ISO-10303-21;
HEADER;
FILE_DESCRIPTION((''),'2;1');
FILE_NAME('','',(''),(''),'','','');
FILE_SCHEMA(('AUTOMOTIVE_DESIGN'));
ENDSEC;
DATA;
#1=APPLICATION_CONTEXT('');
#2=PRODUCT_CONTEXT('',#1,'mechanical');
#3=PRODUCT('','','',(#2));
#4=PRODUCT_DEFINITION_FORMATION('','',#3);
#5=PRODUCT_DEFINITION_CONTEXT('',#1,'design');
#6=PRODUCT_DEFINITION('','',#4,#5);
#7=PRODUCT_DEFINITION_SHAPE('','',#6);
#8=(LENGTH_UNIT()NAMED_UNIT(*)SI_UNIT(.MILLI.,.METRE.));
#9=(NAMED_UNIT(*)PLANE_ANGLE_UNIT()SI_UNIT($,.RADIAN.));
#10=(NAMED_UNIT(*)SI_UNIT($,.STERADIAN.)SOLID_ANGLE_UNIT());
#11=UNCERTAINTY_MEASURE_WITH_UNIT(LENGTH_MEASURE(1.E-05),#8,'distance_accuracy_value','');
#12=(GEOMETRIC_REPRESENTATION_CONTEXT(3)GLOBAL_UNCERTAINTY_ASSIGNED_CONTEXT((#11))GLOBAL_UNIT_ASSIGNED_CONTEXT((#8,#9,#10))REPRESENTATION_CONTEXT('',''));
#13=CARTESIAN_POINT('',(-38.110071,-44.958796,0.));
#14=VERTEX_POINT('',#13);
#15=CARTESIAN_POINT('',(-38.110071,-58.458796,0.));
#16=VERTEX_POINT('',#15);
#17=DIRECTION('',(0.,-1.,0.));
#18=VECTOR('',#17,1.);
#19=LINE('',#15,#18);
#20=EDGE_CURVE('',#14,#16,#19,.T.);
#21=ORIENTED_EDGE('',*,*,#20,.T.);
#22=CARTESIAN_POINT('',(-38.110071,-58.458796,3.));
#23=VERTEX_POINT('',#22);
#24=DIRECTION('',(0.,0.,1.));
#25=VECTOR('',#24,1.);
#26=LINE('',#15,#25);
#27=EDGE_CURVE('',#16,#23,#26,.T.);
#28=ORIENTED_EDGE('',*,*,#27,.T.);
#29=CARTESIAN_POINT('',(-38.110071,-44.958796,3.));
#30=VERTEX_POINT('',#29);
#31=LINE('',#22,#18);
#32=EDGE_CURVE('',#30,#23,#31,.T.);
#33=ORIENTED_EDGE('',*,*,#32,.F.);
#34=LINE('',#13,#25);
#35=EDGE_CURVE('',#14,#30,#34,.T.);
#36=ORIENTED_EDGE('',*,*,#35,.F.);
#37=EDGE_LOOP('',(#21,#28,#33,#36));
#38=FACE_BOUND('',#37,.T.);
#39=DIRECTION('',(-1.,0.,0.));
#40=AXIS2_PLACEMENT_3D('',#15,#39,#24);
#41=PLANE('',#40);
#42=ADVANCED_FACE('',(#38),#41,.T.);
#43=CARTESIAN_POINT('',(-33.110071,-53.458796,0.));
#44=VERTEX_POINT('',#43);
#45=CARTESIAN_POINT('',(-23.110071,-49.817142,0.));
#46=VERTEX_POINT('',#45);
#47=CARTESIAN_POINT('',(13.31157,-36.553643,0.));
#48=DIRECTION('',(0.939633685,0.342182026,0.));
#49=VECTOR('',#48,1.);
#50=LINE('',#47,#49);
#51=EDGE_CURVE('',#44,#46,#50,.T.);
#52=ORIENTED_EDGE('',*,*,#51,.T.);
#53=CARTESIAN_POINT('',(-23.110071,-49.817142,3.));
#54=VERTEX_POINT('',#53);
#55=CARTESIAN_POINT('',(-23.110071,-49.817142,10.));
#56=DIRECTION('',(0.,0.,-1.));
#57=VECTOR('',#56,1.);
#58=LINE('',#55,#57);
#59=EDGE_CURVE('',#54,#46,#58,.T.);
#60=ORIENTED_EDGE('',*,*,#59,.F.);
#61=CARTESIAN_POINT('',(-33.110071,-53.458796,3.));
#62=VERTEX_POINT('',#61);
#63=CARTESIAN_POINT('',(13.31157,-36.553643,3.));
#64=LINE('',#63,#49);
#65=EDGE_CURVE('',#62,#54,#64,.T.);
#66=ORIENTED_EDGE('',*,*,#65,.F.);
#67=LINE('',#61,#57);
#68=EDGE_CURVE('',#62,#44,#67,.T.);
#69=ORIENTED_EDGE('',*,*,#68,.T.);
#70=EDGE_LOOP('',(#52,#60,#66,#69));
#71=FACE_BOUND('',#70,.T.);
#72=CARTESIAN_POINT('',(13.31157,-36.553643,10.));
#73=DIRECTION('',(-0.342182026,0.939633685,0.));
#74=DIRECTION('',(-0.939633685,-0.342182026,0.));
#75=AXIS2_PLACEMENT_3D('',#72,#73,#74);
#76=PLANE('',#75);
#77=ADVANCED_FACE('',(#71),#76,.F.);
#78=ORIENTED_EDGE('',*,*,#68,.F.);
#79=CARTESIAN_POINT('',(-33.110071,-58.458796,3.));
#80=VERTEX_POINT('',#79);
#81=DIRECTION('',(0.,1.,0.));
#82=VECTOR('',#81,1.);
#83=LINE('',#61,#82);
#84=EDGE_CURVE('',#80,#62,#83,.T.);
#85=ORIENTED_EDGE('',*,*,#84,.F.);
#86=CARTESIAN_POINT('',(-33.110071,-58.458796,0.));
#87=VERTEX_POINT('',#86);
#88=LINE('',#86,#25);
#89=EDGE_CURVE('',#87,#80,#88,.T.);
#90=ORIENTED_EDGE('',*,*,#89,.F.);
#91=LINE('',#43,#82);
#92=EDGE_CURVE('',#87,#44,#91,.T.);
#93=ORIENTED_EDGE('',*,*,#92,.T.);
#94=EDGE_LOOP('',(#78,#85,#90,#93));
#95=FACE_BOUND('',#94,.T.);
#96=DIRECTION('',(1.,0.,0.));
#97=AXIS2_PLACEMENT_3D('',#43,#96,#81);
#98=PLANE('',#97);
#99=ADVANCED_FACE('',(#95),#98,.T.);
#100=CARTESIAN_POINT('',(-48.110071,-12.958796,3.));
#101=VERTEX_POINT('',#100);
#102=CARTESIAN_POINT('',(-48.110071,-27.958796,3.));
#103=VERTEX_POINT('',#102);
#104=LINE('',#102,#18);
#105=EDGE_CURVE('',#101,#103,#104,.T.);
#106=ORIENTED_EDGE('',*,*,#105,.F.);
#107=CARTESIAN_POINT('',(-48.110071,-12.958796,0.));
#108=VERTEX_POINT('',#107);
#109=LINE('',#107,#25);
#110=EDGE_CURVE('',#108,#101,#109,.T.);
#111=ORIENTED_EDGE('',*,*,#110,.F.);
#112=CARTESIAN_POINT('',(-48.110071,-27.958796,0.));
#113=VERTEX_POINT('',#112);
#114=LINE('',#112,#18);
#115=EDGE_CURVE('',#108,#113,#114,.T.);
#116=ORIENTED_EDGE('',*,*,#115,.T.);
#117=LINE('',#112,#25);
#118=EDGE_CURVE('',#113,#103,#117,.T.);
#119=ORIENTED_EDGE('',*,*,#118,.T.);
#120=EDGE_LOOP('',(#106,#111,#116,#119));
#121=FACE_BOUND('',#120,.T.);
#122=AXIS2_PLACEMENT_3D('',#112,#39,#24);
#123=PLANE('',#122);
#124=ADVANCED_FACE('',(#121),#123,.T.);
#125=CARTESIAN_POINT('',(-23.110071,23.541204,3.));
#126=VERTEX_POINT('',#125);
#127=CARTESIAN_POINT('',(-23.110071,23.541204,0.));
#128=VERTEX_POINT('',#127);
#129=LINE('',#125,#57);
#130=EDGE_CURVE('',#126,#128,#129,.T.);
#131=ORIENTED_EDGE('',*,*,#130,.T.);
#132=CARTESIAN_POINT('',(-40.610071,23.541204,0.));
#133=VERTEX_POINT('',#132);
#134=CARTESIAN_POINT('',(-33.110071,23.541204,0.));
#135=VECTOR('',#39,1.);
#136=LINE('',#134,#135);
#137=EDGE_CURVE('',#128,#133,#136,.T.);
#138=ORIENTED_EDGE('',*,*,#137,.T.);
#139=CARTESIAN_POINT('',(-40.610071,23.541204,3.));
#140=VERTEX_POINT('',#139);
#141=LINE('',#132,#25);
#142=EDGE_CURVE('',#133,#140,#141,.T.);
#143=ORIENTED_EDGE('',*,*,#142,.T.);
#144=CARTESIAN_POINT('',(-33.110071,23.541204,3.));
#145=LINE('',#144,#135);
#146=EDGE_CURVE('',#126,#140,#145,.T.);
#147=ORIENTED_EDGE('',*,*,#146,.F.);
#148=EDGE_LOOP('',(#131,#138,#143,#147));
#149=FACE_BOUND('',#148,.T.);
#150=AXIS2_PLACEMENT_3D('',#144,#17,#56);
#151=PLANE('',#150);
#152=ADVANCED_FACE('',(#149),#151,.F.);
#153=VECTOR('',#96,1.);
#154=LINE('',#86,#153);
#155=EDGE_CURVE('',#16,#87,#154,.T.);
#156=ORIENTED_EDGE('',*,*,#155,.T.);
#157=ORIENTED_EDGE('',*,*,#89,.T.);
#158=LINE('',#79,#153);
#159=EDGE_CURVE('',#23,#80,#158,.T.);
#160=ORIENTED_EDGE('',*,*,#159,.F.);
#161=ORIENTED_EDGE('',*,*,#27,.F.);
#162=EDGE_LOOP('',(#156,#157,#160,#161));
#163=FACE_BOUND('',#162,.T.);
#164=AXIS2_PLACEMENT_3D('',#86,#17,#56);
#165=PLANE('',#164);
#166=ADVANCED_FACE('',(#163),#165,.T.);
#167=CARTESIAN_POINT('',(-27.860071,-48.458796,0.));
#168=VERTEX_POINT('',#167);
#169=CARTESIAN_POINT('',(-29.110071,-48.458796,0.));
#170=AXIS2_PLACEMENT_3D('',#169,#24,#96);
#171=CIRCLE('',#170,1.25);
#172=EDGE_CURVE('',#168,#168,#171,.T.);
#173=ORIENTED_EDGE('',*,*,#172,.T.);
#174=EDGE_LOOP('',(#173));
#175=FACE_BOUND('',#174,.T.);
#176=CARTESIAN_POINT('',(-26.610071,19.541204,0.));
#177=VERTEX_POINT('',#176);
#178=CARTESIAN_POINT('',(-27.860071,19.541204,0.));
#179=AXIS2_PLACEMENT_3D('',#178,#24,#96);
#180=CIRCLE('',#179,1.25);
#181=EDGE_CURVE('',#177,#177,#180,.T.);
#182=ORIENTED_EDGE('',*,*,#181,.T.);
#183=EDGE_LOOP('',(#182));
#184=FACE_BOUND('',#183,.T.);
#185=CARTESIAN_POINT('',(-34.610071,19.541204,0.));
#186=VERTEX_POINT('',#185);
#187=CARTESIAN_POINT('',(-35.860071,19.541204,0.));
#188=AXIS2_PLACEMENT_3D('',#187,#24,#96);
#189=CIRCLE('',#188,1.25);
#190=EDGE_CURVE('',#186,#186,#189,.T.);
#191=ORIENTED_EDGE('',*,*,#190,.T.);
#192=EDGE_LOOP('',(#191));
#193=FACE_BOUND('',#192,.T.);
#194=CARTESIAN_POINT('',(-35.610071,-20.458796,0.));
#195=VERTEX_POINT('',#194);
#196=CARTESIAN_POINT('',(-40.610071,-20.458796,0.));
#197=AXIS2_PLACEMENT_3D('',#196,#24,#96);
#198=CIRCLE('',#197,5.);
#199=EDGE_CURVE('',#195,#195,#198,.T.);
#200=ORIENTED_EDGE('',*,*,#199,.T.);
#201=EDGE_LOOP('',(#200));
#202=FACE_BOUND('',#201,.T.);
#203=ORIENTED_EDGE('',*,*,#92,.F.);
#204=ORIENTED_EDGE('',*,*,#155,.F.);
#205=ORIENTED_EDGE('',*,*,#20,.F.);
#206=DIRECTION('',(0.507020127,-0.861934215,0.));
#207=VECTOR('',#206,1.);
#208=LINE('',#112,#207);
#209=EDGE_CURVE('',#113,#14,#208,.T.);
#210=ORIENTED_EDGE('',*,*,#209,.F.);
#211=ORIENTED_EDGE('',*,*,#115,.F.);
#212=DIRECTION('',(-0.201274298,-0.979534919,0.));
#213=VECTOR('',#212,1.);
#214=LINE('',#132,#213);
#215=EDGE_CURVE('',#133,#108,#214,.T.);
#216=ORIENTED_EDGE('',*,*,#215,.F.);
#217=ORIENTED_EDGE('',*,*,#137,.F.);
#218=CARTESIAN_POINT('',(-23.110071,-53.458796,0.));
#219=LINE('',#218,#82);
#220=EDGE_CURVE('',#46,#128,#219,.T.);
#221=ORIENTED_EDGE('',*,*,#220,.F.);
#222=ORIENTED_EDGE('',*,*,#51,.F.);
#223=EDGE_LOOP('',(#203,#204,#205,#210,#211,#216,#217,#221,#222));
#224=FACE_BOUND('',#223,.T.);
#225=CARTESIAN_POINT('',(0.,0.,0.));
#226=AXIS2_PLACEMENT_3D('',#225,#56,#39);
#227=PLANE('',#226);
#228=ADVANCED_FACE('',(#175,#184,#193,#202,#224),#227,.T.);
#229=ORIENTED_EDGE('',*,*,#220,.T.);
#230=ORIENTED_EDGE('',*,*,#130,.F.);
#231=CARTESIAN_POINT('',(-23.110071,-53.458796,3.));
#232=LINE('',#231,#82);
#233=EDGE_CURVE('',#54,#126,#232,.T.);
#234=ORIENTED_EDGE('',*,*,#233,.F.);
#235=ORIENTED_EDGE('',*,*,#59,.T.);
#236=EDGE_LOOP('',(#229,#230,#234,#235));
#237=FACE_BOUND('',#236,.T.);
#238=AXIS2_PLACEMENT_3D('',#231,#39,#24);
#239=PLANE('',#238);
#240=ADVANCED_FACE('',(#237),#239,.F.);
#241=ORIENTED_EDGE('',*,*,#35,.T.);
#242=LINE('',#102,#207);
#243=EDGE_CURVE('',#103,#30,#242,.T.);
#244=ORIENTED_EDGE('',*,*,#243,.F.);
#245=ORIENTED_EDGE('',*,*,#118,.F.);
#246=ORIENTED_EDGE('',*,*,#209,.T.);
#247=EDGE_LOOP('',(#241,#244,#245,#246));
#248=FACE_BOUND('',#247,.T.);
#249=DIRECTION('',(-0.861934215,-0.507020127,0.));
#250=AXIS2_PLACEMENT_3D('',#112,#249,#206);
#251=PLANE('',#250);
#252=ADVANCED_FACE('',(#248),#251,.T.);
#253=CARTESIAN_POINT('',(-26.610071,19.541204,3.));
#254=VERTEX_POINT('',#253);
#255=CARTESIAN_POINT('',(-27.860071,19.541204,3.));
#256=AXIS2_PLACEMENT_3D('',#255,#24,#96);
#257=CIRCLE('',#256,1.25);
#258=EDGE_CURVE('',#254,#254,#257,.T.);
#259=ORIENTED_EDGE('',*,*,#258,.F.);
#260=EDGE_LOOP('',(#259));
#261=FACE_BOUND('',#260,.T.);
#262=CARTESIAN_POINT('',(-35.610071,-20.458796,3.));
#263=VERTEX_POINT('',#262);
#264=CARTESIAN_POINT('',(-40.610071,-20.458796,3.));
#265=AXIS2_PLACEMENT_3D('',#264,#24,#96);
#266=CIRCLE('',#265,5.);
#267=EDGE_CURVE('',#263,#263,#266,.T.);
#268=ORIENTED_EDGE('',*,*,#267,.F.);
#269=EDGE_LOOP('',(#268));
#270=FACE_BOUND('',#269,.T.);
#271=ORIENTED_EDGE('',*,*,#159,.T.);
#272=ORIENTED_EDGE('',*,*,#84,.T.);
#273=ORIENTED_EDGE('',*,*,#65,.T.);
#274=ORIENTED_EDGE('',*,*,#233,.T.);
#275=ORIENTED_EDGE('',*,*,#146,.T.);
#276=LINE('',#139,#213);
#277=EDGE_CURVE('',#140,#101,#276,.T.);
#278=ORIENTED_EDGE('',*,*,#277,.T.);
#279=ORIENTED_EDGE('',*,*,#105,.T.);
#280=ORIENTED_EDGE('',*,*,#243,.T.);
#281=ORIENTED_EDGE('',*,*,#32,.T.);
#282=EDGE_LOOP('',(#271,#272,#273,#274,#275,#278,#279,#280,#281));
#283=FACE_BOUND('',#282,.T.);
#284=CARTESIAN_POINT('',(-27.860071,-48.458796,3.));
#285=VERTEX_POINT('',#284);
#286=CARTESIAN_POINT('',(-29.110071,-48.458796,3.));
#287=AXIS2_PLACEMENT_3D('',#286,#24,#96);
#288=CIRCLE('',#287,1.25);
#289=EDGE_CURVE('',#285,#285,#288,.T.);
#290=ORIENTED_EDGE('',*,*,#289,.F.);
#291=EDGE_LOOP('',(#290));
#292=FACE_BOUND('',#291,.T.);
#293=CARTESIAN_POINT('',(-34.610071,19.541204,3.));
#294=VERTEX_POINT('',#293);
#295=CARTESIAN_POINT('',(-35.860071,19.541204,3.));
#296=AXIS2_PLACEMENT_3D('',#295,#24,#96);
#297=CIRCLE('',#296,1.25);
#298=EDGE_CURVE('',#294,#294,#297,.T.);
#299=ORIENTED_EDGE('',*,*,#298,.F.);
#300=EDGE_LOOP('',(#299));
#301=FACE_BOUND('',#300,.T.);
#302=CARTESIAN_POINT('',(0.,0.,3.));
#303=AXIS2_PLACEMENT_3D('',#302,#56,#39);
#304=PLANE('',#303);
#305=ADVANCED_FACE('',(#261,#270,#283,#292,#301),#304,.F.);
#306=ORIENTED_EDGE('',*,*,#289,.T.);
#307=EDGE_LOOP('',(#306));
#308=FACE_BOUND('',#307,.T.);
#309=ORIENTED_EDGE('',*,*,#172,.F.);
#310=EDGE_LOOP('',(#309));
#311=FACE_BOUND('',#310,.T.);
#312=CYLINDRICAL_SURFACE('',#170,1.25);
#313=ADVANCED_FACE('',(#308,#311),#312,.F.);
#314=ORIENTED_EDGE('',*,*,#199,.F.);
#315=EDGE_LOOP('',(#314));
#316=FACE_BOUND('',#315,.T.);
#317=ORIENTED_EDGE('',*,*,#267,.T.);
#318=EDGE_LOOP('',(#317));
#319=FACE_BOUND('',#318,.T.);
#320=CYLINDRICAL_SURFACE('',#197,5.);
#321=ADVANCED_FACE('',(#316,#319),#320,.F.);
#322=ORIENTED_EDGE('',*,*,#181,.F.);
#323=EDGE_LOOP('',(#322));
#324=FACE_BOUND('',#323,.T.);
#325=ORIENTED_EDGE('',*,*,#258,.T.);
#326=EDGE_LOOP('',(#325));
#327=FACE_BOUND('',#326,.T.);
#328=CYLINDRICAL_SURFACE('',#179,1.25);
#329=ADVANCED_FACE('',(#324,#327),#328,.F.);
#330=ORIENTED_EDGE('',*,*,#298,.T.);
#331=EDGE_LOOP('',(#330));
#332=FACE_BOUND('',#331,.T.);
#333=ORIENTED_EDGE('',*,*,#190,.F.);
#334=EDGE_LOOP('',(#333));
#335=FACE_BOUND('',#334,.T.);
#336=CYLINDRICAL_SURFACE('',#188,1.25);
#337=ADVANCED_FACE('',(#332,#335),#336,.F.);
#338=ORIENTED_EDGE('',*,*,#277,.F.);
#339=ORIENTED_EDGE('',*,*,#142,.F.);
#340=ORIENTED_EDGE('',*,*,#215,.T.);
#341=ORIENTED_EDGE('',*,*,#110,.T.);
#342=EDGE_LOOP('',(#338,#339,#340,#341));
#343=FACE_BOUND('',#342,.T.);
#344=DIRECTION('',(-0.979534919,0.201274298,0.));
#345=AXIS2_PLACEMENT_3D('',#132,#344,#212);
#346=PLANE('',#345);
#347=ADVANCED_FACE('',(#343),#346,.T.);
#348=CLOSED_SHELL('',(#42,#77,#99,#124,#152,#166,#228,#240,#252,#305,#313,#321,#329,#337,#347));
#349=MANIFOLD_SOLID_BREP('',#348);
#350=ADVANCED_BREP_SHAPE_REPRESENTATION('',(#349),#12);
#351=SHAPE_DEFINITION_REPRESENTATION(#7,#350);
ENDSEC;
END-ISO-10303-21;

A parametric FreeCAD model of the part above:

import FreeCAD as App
import Part
import Sketcher
Q = App.Units.Quantity


def add_polygon(sketch, points):
    """Adds a closed chain of lines whose ends are joined by coincident constraints."""
    first, n = sketch.GeometryCount, len(points)
    for a, b in zip(points, points[1:] + points[:1]):
        sketch.addGeometry(Part.LineSegment(App.Vector(*a, 0), App.Vector(*b, 0)), False)
    for i in range(n):
        sketch.addConstraint(Sketcher.Constraint("Coincident", first + i, 2, first + (i + 1) % n, 1))

doc = App.newDocument("Part")
params = doc.addObject("Spreadsheet::Sheet", "Params")
for row, (alias, value) in enumerate([
    ("sketch1_width", "10 mm"),
    ("sketch1_height", "77 mm"),
    ("pad1_length", "3 mm"),
    ("sketch2_width", "15 mm"),
    ("pad2_length", "3 mm"),
    ("sketch3_width", "15 mm"),
    ("sketch3_width2", "7.5 mm"),
    ("sketch3_height", "36.5 mm"),
    ("sketch3_height2", "25.5 mm"),
    ("pad3_length", "3 mm"),
    ("sketch4_width", "5 mm"),
    ("sketch4_height", "13.5 mm"),
    ("pad4_length", "3 mm"),
    ("sketch5_diameter", "10 mm"),
    ("sketch5_diameter2", "2.5 mm"),
    ("pocket1_length", "3 mm"),
    ("sketch6_width", "10 mm"),
    ("pocket2_length", "10 mm"),
], start=1):
    params.set(f"A{row}", alias)
    params.set(f"B{row}", "=" + value)
    params.setAlias(f"B{row}", alias)

body = doc.addObject("PartDesign::Body", "Body")

sketch1 = doc.addObject("Sketcher::SketchObject", "Sketch")
body.addObject(sketch1)
sketch1.AttachmentSupport = (doc.XY_Plane, [""])
sketch1.MapMode = "FlatFace"
add_polygon(sketch1, [(-33, 24), (-33, -53), (-23, -53), (-23, 24)])
sketch1.addConstraint(Sketcher.Constraint("Vertical", 0))
sketch1.addConstraint(Sketcher.Constraint("Horizontal", 1))
sketch1.addConstraint(Sketcher.Constraint("Vertical", 2))
sketch1.addConstraint(Sketcher.Constraint("Horizontal", 3))
sketch1.addConstraint(Sketcher.Constraint("DistanceX", 1, 1, 1, 2, Q("10 mm")))
sketch1.addConstraint(Sketcher.Constraint("DistanceY", 0, 2, 0, 1, Q("77 mm")))
sketch1.addConstraint(Sketcher.Constraint("DistanceX", 0, 2, -1, 1, Q("33.110071 mm")))
sketch1.addConstraint(Sketcher.Constraint("DistanceY", 0, 2, -1, 1, Q("53.458796 mm")))
sketch1.setExpression("Constraints[8]", "Params.sketch1_width")
sketch1.setExpression("Constraints[9]", "Params.sketch1_height")
pad1 = doc.addObject("PartDesign::Pad", "Pad")
body.addObject(pad1)
pad1.Profile = sketch1
pad1.setExpression("Length", "Params.pad1_length")

sketch2 = doc.addObject("Sketcher::SketchObject", "Sketch001")
body.addObject(sketch2)
sketch2.AttachmentSupport = (doc.XY_Plane, [""])
sketch2.MapMode = "FlatFace"
sketch2.AttachmentOffset = App.Placement(App.Vector(0, 0, 3), App.Rotation())
add_polygon(sketch2, [(-48, -13), (-48, -28), (-33, -28), (-33, -13)])
sketch2.addConstraint(Sketcher.Constraint("Vertical", 0))
sketch2.addConstraint(Sketcher.Constraint("Horizontal", 1))
sketch2.addConstraint(Sketcher.Constraint("Vertical", 2))
sketch2.addConstraint(Sketcher.Constraint("Horizontal", 3))
sketch2.addConstraint(Sketcher.Constraint("Equal", 3, 0))
sketch2.addConstraint(Sketcher.Constraint("DistanceX", 1, 1, 1, 2, Q("15 mm")))
sketch2.addConstraint(Sketcher.Constraint("DistanceX", 0, 2, -1, 1, Q("48.110071 mm")))
sketch2.addConstraint(Sketcher.Constraint("DistanceY", 0, 2, -1, 1, Q("27.958796 mm")))
sketch2.setExpression("Constraints[9]", "Params.sketch2_width")
pad2 = doc.addObject("PartDesign::Pad", "Pad001")
body.addObject(pad2)
pad2.Profile = sketch2
pad2.setExpression("Length", "Params.pad2_length")
pad2.Reversed = True

sketch3 = doc.addObject("Sketcher::SketchObject", "Sketch002")
body.addObject(sketch3)
sketch3.AttachmentSupport = (doc.XY_Plane, [""])
sketch3.MapMode = "FlatFace"
sketch3.AttachmentOffset = App.Placement(App.Vector(0, 0, 3), App.Rotation())
add_polygon(sketch3, [(-33, 24), (-41, 24), (-48, -13), (-33, -13)])
add_polygon(sketch3, [(-48, -28), (-33, -53), (-33, -28)])
sketch3.addConstraint(Sketcher.Constraint("Horizontal", 0))
sketch3.addConstraint(Sketcher.Constraint("Horizontal", 2))
sketch3.addConstraint(Sketcher.Constraint("Vertical", 3))
sketch3.addConstraint(Sketcher.Constraint("Vertical", 5))
sketch3.addConstraint(Sketcher.Constraint("Horizontal", 6))
sketch3.addConstraint(Sketcher.Constraint("Vertical", 3, 2, 4, 2))
sketch3.addConstraint(Sketcher.Constraint("Vertical", 1, 2, 6, 2))
sketch3.addConstraint(Sketcher.Constraint("DistanceX", 2, 1, 2, 2, Q("15 mm")))
sketch3.addConstraint(Sketcher.Constraint("DistanceX", 0, 2, 0, 1, Q("7.5 mm")))
sketch3.addConstraint(Sketcher.Constraint("DistanceY", 3, 1, 3, 2, Q("36.5 mm")))
sketch3.addConstraint(Sketcher.Constraint("DistanceY", 5, 1, 5, 2, Q("25.5 mm")))
sketch3.addConstraint(Sketcher.Constraint("DistanceY", 4, 2, 3, 2, Q("77 mm")))
sketch3.addConstraint(Sketcher.Constraint("DistanceX", 0, 2, -1, 1, Q("40.610071 mm")))
sketch3.addConstraint(Sketcher.Constraint("DistanceY", -1, 1, 0, 2, Q("23.541204 mm")))
sketch3.setExpression("Constraints[14]", "Params.sketch3_width")
sketch3.setExpression("Constraints[15]", "Params.sketch3_width2")
sketch3.setExpression("Constraints[16]", "Params.sketch3_height")
sketch3.setExpression("Constraints[17]", "Params.sketch3_height2")
pad3 = doc.addObject("PartDesign::Pad", "Pad002")
body.addObject(pad3)
pad3.Profile = sketch3
pad3.setExpression("Length", "Params.pad3_length")
pad3.Reversed = True

sketch4 = doc.addObject("Sketcher::SketchObject", "Sketch003")
body.addObject(sketch4)
sketch4.AttachmentSupport = (doc.XY_Plane, [""])
sketch4.MapMode = "FlatFace"
sketch4.AttachmentOffset = App.Placement(App.Vector(0, 0, 3), App.Rotation())
add_polygon(sketch4, [(-33, -58), (-33, -53), (-38, -45), (-38, -58)])
sketch4.addConstraint(Sketcher.Constraint("Vertical", 0))
sketch4.addConstraint(Sketcher.Constraint("Vertical", 2))
sketch4.addConstraint(Sketcher.Constraint("Horizontal", 3))
sketch4.addConstraint(Sketcher.Constraint("Equal", 3, 0))
sketch4.addConstraint(Sketcher.Constraint("DistanceX", 3, 1, 3, 2, Q("5 mm")))
sketch4.addConstraint(Sketcher.Constraint("DistanceY", 2, 2, 2, 1, Q("13.5 mm")))
sketch4.addConstraint(Sketcher.Constraint("DistanceX", 0, 2, -1, 1, Q("33.110071 mm")))
sketch4.addConstraint(Sketcher.Constraint("DistanceY", 0, 2, -1, 1, Q("53.458796 mm")))
sketch4.setExpression("Constraints[8]", "Params.sketch4_width")
sketch4.setExpression("Constraints[9]", "Params.sketch4_height")
pad4 = doc.addObject("PartDesign::Pad", "Pad003")
body.addObject(pad4)
pad4.Profile = sketch4
pad4.setExpression("Length", "Params.pad4_length")
pad4.Reversed = True

sketch5 = doc.addObject("Sketcher::SketchObject", "Sketch004")
body.addObject(sketch5)
sketch5.AttachmentSupport = (doc.XY_Plane, [""])
sketch5.MapMode = "FlatFace"
sketch5.AttachmentOffset = App.Placement(App.Vector(0, 0, 3), App.Rotation())
sketch5.addGeometry(Part.Circle(App.Vector(-40.6, -20.5, 0), App.Vector(0, 0, 1), 5), False)
sketch5.addGeometry(Part.Circle(App.Vector(-29.1, -48.5, 0), App.Vector(0, 0, 1), 1.2), False)
sketch5.addGeometry(Part.Circle(App.Vector(-35.9, 19.5, 0), App.Vector(0, 0, 1), 1.2), False)
sketch5.addGeometry(Part.Circle(App.Vector(-27.9, 19.5, 0), App.Vector(0, 0, 1), 1.2), False)
sketch5.addConstraint(Sketcher.Constraint("Equal", 1, 2))
sketch5.addConstraint(Sketcher.Constraint("Equal", 2, 3))
sketch5.addConstraint(Sketcher.Constraint("Horizontal", 2, 3, 3, 3))
sketch5.addConstraint(Sketcher.Constraint("Diameter", 0, Q("10 mm")))
sketch5.addConstraint(Sketcher.Constraint("Diameter", 1, Q("2.5 mm")))
sketch5.addConstraint(Sketcher.Constraint("DistanceY", 1, 3, 0, 3, Q("28 mm")))
sketch5.addConstraint(Sketcher.Constraint("DistanceY", 0, 3, 2, 3, Q("40 mm")))
sketch5.addConstraint(Sketcher.Constraint("DistanceX", 2, 3, 3, 3, Q("8 mm")))
sketch5.addConstraint(Sketcher.Constraint("DistanceX", 0, 3, 1, 3, Q("11.5 mm")))
sketch5.addConstraint(Sketcher.Constraint("DistanceX", 0, 3, 2, 3, Q("4.75 mm")))
sketch5.addConstraint(Sketcher.Constraint("DistanceX", 0, 3, -1, 1, Q("40.610071 mm")))
sketch5.addConstraint(Sketcher.Constraint("DistanceY", 0, 3, -1, 1, Q("20.458796 mm")))
sketch5.setExpression("Constraints[3]", "Params.sketch5_diameter")
sketch5.setExpression("Constraints[4]", "Params.sketch5_diameter2")
pocket1 = doc.addObject("PartDesign::Pocket", "Pocket")
body.addObject(pocket1)
pocket1.Profile = sketch5
pocket1.setExpression("Length", "Params.pocket1_length")

sketch6 = doc.addObject("Sketcher::SketchObject", "Sketch005")
body.addObject(sketch6)
sketch6.AttachmentSupport = (doc.XY_Plane, [""])
sketch6.MapMode = "FlatFace"
add_polygon(sketch6, [(-23.1, -49.8), (-23.1, -53.5), (-33.1, -53.5)])
sketch6.addConstraint(Sketcher.Constraint("Vertical", 0))
sketch6.addConstraint(Sketcher.Constraint("Horizontal", 1))
sketch6.addConstraint(Sketcher.Constraint("DistanceX", 1, 2, 1, 1, Q("10 mm")))
sketch6.addConstraint(Sketcher.Constraint("DistanceY", 0, 2, 0, 1, Q("3.641653 mm")))
sketch6.addConstraint(Sketcher.Constraint("DistanceX", 0, 2, -1, 1, Q("23.110071 mm")))
sketch6.addConstraint(Sketcher.Constraint("DistanceY", 0, 2, -1, 1, Q("53.458796 mm")))
sketch6.setExpression("Constraints[5]", "Params.sketch6_width")
pocket2 = doc.addObject("PartDesign::Pocket", "Pocket001")
body.addObject(pocket2)
pocket2.Profile = sketch6
pocket2.setExpression("Length", "Params.pocket2_length")
pocket2.Reversed = True

doc.recompute()
